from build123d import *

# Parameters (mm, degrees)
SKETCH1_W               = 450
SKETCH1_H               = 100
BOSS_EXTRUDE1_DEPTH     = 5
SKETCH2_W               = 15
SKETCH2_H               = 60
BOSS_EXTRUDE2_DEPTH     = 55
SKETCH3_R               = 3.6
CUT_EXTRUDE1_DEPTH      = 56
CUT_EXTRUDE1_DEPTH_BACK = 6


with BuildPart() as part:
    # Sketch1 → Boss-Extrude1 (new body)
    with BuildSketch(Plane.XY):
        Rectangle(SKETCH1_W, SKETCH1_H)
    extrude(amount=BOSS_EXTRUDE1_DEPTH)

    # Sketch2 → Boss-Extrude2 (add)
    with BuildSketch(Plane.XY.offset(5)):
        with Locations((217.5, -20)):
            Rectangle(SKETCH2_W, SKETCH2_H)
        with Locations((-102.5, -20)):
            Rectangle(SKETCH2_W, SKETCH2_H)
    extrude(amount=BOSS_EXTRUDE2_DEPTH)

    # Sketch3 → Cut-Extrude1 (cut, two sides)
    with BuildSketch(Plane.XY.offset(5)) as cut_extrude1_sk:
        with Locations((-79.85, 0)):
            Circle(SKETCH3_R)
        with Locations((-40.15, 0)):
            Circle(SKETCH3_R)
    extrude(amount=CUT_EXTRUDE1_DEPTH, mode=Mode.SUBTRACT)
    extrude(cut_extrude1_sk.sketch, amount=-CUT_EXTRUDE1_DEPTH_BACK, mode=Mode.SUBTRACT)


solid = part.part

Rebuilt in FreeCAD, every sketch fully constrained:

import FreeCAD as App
import Part
import Sketcher

V = App.Vector
Q = App.Units.Quantity


def add_polygon(sketch, points):
    """Adds a closed chain of lines whose ends are joined by coincident constraints."""
    first, n = sketch.GeometryCount, len(points)
    for a, b in zip(points, points[1:] + points[:1]):
        sketch.addGeometry(Part.LineSegment(App.Vector(*a, 0), App.Vector(*b, 0)), False)
    for i in range(n):
        sketch.addConstraint(Sketcher.Constraint("Coincident", first + i, 2, first + (i + 1) % n, 1))

doc = App.newDocument("Part")
body = doc.addObject("PartDesign::Body", "Body")

# Sketch on XY plane
sketch1 = body.newObject("Sketcher::SketchObject", "Sketch")
sketch1.AttachmentSupport = (doc.getObject("XY_Plane"), [""])
sketch1.MapMode = "FlatFace"
add_polygon(sketch1, [(-225, 50), (-225, -50), (225, -50), (225, 50)])  # lines 0-3
sketch1.addConstraint([
    Sketcher.Constraint("Vertical", 0),
    Sketcher.Constraint("Horizontal", 1),
    Sketcher.Constraint("Vertical", 2),
    Sketcher.Constraint("Horizontal", 3),
    Sketcher.Constraint("Symmetric", 0, 2, 2, 2, -1, 1),
    Sketcher.Constraint("DistanceX", 1, 1, 1, 2, Q("450 mm")),
    Sketcher.Constraint("DistanceY", 0, 2, 0, 1, Q("100 mm")),
])
pad1 = body.newObject("PartDesign::Pad", "Pad")
pad1.Profile = sketch1
pad1.Length = 5

# Sketch on XY plane
sketch2 = body.newObject("Sketcher::SketchObject", "Sketch001")
sketch2.AttachmentSupport = (doc.getObject("XY_Plane"), [""])
sketch2.MapMode = "FlatFace"
sketch2.AttachmentOffset = App.Placement(V(0, 0, 5), App.Rotation())
add_polygon(sketch2, [(210, 10), (210, -50), (225, -50), (225, 10)])  # lines 0-3
add_polygon(sketch2, [(-110, 10), (-110, -50), (-95, -50), (-95, 10)])  # lines 4-7
sketch2.addConstraint([
    Sketcher.Constraint("Vertical", 0),
    Sketcher.Constraint("Horizontal", 1),
    Sketcher.Constraint("Vertical", 2),
    Sketcher.Constraint("Horizontal", 3),
    Sketcher.Constraint("Vertical", 4),
    Sketcher.Constraint("Horizontal", 5),
    Sketcher.Constraint("Vertical", 6),
    Sketcher.Constraint("Horizontal", 7),
    Sketcher.Constraint("Horizontal", 1, 2, 4, 2),
    Sketcher.Constraint("Horizontal", 3, 2, 6, 2),
    Sketcher.Constraint("Equal", 3, 5),
    Sketcher.Constraint("DistanceX", 1, 1, 1, 2, Q("15 mm")),
    Sketcher.Constraint("DistanceY", 0, 2, 0, 1, Q("60 mm")),
    Sketcher.Constraint("DistanceX", -1, 1, 0, 2, Q("210 mm")),
    Sketcher.Constraint("DistanceY", 0, 2, -1, 1, Q("50 mm")),
    Sketcher.Constraint("DistanceX", 4, 2, -1, 1, Q("110 mm")),
])
pad2 = body.newObject("PartDesign::Pad", "Pad001")
pad2.Profile = sketch2
pad2.Length = 55

# Sketch on XY plane
sketch3 = body.newObject("Sketcher::SketchObject", "Sketch002")
sketch3.AttachmentSupport = (doc.getObject("XY_Plane"), [""])
sketch3.MapMode = "FlatFace"
sketch3.AttachmentOffset = App.Placement(V(0, 0, 5), App.Rotation())
sketch3.addGeometry([
    Part.Circle(V(-79.8, 0, 0), V(0, 0, 1), 3.6),
    Part.Circle(V(-40.1, 0, 0), V(0, 0, 1), 3.6),
], False)
sketch3.addConstraint([
    Sketcher.Constraint("Equal", 0, 1),
    Sketcher.Constraint("PointOnObject", 0, 3, -1),
    Sketcher.Constraint("PointOnObject", 1, 3, -1),
    Sketcher.Constraint("Diameter", 0, Q("7.2 mm")),
    Sketcher.Constraint("DistanceX", 0, 3, 1, 3, Q("39.7 mm")),
    Sketcher.Constraint("DistanceX", 0, 3, -1, 1, Q("79.85 mm")),
])
pocket1 = body.newObject("PartDesign::Pocket", "Pocket")
pocket1.Profile = sketch3
pocket1.Type = "ThroughAll"
pocket1.Midplane = True

doc.recompute()
